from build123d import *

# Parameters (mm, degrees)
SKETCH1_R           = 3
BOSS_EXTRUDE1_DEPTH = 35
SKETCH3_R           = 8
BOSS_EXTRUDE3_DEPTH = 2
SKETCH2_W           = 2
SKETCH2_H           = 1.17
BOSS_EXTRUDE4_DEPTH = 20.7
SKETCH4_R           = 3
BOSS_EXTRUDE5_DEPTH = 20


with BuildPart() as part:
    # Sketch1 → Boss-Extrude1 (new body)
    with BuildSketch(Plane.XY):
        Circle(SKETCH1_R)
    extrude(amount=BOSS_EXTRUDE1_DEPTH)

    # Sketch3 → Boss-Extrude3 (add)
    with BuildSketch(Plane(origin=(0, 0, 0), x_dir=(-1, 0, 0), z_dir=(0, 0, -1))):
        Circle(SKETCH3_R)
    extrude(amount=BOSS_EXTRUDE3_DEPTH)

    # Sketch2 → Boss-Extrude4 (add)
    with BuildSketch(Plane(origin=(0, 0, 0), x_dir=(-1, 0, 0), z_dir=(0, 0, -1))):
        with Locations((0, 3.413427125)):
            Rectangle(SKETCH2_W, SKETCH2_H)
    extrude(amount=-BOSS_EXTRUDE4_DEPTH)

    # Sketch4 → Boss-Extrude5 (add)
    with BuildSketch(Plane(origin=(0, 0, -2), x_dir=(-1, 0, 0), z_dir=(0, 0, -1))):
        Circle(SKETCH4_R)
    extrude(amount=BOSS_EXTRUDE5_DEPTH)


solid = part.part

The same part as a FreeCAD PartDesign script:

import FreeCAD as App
import Part
import Sketcher

V = App.Vector

doc = App.newDocument("Part")
body = doc.addObject("PartDesign::Body", "Body")

# Sketch on XY plane
sketch1 = body.newObject("Sketcher::SketchObject", "Sketch")
sketch1.AttachmentSupport = (doc.getObject("XY_Plane"), [""])
sketch1.MapMode = "FlatFace"
sketch1.addGeometry(Part.Circle(V(0, 0, 0), V(0, 0, 1), 3), False)
sketch1.addConstraint(Sketcher.Constraint("Coincident", 0, 3, -1, 1))
sketch1.addConstraint(Sketcher.Constraint("Diameter", 0, 6.0))
pad1 = body.newObject("PartDesign::Pad", "Pad")
pad1.Profile = sketch1
pad1.Length = 35

# Sketch on XY plane
sketch2 = body.newObject("Sketcher::SketchObject", "Sketch001")
sketch2.AttachmentSupport = (doc.getObject("XY_Plane"), [""])
sketch2.MapMode = "FlatFace"
sketch2.addGeometry(Part.Circle(V(0, 0, 0), V(0, 0, 1), 8), False)
sketch2.addConstraint(Sketcher.Constraint("Coincident", 0, 3, -1, 1))
sketch2.addConstraint(Sketcher.Constraint("Diameter", 0, 16.0))
pad2 = body.newObject("PartDesign::Pad", "Pad001")
pad2.Profile = sketch2
pad2.Length = 2
pad2.Reversed = True

# Sketch on XY plane
sketch3 = body.newObject("Sketcher::SketchObject", "Sketch002")
sketch3.AttachmentSupport = (doc.getObject("XY_Plane"), [""])
sketch3.MapMode = "FlatFace"
sketch3.addGeometry(Part.LineSegment(V(1, 4, 0), V(1, 2.8, 0)), False)
sketch3.addGeometry(Part.LineSegment(V(1, 2.8, 0), V(-1, 2.8, 0)), False)
sketch3.addGeometry(Part.LineSegment(V(-1, 2.8, 0), V(-1, 4, 0)), False)
sketch3.addGeometry(Part.LineSegment(V(-1, 4, 0), V(1, 4, 0)), False)
sketch3.addConstraint(Sketcher.Constraint("Coincident", 0, 2, 1, 1))
sketch3.addConstraint(Sketcher.Constraint("Coincident", 1, 2, 2, 1))
sketch3.addConstraint(Sketcher.Constraint("Coincident", 2, 2, 3, 1))
sketch3.addConstraint(Sketcher.Constraint("Coincident", 3, 2, 0, 1))
sketch3.addConstraint(Sketcher.Constraint("Vertical", 0))
sketch3.addConstraint(Sketcher.Constraint("Horizontal", 1))
sketch3.addConstraint(Sketcher.Constraint("Vertical", 2))
sketch3.addConstraint(Sketcher.Constraint("Horizontal", 3))
sketch3.addConstraint(Sketcher.Constraint("DistanceX", 1, 2, 1, 1, 2.0))
sketch3.addConstraint(Sketcher.Constraint("DistanceX", -1, 1, 0, 2, 1.0))
sketch3.addConstraint(Sketcher.Constraint("DistanceY", 0, 2, 0, 1, 1.17))
sketch3.addConstraint(Sketcher.Constraint("DistanceY", -1, 1, 0, 2, 2.828427))
pad3 = body.newObject("PartDesign::Pad", "Pad002")
pad3.Profile = sketch3
pad3.Length = 20.7

# Sketch on XY plane
sketch4 = body.newObject("Sketcher::SketchObject", "Sketch003")
sketch4.AttachmentSupport = (doc.getObject("XY_Plane"), [""])
sketch4.MapMode = "FlatFace"
sketch4.AttachmentOffset = App.Placement(V(0, 0, -2), App.Rotation())
sketch4.addGeometry(Part.Circle(V(0, 0, 0), V(0, 0, 1), 3), False)
sketch4.addConstraint(Sketcher.Constraint("Coincident", 0, 3, -1, 1))
sketch4.addConstraint(Sketcher.Constraint("Diameter", 0, 6.0))
pad4 = body.newObject("PartDesign::Pad", "Pad003")
pad4.Profile = sketch4
pad4.Length = 20
pad4.Reversed = True

doc.recompute()
